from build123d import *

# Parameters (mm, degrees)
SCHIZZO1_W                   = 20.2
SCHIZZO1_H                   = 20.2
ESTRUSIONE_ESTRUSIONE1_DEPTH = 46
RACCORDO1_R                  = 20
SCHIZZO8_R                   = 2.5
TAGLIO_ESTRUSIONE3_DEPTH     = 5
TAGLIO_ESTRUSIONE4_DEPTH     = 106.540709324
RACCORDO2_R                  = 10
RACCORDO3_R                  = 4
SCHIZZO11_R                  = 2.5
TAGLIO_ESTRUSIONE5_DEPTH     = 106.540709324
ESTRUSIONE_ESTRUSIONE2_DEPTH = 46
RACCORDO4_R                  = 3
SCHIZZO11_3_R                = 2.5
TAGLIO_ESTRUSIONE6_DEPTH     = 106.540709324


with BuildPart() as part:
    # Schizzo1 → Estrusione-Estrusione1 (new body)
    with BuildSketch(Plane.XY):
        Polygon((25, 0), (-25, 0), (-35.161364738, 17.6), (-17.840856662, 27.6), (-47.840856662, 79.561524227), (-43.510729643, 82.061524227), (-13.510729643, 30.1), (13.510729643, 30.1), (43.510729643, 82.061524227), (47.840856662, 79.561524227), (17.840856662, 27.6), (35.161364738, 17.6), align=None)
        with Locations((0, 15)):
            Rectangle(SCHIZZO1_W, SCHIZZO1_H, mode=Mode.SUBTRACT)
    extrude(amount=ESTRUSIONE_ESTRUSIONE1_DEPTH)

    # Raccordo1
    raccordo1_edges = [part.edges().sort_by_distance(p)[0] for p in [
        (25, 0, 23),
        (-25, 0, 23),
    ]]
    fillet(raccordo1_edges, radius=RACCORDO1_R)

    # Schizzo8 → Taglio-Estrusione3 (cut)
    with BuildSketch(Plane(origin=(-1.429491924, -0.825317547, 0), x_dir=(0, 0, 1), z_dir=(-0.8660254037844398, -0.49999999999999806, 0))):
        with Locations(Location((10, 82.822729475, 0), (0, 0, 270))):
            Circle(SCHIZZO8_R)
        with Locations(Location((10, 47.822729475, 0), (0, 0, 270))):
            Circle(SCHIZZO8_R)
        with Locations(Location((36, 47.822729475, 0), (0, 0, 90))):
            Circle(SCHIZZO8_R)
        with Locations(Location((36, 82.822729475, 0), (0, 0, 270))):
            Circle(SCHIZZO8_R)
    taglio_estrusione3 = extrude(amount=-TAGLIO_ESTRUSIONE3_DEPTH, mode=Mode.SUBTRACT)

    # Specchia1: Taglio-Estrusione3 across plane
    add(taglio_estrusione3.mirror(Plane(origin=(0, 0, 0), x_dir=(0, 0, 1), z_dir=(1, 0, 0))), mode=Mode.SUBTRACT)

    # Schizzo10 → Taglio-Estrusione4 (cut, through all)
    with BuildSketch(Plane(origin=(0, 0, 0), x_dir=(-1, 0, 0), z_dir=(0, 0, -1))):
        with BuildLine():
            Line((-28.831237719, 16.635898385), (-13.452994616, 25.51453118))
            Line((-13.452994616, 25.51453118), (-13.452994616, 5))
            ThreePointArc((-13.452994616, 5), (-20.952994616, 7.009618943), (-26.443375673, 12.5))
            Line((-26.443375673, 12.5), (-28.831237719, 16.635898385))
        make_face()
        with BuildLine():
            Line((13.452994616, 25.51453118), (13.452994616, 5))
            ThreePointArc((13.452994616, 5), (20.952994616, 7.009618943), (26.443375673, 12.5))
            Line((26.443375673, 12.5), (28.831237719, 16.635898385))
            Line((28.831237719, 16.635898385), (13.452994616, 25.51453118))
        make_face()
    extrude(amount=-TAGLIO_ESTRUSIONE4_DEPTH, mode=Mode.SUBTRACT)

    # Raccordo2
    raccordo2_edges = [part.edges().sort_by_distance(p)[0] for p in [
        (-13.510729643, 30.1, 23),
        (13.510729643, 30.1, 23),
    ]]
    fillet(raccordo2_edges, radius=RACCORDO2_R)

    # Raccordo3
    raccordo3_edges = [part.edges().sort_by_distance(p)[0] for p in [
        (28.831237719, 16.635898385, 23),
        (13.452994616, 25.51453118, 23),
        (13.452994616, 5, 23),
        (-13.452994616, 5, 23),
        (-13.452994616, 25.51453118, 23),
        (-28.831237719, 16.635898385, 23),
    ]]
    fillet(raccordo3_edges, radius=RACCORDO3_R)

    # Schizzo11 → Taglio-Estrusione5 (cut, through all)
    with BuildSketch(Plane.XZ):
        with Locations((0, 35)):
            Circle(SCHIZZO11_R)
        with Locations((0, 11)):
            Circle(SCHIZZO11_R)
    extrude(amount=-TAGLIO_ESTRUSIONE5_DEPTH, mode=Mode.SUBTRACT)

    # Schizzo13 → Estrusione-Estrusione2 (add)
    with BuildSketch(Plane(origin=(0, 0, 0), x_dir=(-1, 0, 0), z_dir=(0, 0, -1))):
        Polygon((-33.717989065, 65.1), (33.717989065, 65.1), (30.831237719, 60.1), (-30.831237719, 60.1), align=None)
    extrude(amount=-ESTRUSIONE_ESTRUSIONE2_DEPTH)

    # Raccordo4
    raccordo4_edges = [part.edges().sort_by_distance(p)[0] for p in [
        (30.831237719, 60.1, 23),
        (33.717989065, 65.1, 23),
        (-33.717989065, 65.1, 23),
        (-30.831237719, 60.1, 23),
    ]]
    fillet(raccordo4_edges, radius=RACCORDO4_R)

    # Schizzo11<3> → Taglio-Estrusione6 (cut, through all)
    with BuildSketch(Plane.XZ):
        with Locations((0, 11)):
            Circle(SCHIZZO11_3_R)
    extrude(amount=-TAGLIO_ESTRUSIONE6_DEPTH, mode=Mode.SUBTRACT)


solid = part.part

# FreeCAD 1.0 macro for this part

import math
import FreeCAD as App
import Part
import Sketcher

V = App.Vector
Q = App.Units.Quantity


def edges_at(feature, points):
    """Names of the edges that pass closest to the given points."""
    edges = feature.Shape.Edges
    near = lambda p: min(range(len(edges)), key=lambda i: edges[i].distToShape(Part.Vertex(*p))[0])
    return sorted({f"Edge{near(p) + 1}" for p in points})


def add_polygon(sketch, points):
    """Adds a closed chain of lines whose ends are joined by coincident constraints."""
    first, n = sketch.GeometryCount, len(points)
    for a, b in zip(points, points[1:] + points[:1]):
        sketch.addGeometry(Part.LineSegment(App.Vector(*a, 0), App.Vector(*b, 0)), False)
    for i in range(n):
        sketch.addConstraint(Sketcher.Constraint("Coincident", first + i, 2, first + (i + 1) % n, 1))

doc = App.newDocument("Part")
params = doc.addObject("Spreadsheet::Sheet", "Params")
for row, (alias, value) in enumerate([
    ("sketch1_width", "50 mm"),
    ("sketch1_length", "20 mm"),
    ("sketch1_length2", "60 mm"),
    ("sketch1_length3", "5 mm"),
    ("sketch1_width2", "20.2 mm"),
    ("pad1_length", "46 mm"),
    ("fillet_radius", "20 mm"),
    ("sketch2_diameter", "5 mm"),
    ("pocket1_length", "5 mm"),
    ("sketch3_radius", "15 mm"),
    ("fillet2_radius", "10 mm"),
    ("fillet3_radius", "4 mm"),
    ("sketch4_diameter", "5 mm"),
    ("pad2_length", "46 mm"),
    ("fillet4_radius", "3 mm"),
    ("sketch6_diameter", "5 mm"),
], start=1):
    params.set(f"A{row}", alias)
    params.set(f"B{row}", "=" + value)
    params.setAlias(f"B{row}", alias)

body = doc.addObject("PartDesign::Body", "Body")

sketch1 = doc.addObject("Sketcher::SketchObject", "Sketch")
body.addObject(sketch1)
sketch1.AttachmentSupport = (doc.XY_Plane, [""])
sketch1.MapMode = "FlatFace"
add_polygon(sketch1, [(-25, 0), (25, 0), (35.161365, 17.6), (17.840857, 27.6), (47.840857, 79.561524), (43.51073, 82.061524), (13.51073, 30.1), (-13.51073, 30.1), (-43.51073, 82.061524), (-47.840857, 79.561524), (-17.840857, 27.6), (-35.161365, 17.6)])
add_polygon(sketch1, [(-10.1, 4.9), (-10.1, 25.1), (10.1, 25.1), (10.1, 4.9)])
sketch1.addConstraint(Sketcher.Constraint("Horizontal", 0))
sketch1.addConstraint(Sketcher.Constraint("Horizontal", 6))
sketch1.addConstraint(Sketcher.Constraint("Vertical", 12))
sketch1.addConstraint(Sketcher.Constraint("Horizontal", 13))
sketch1.addConstraint(Sketcher.Constraint("Vertical", 14))
sketch1.addConstraint(Sketcher.Constraint("Horizontal", 15))
sketch1.addConstraint(Sketcher.Constraint("Symmetric", 0, 2, 11, 2, -1, 1))
sketch1.addConstraint(Sketcher.Constraint("Symmetric", 4, 2, 7, 2, -2))
sketch1.addConstraint(Sketcher.Constraint("Symmetric", 3, 2, 8, 2, -2))
sketch1.addConstraint(Sketcher.Constraint("Symmetric", 2, 2, 9, 2, -2))
sketch1.addConstraint(Sketcher.Constraint("Symmetric", 1, 2, 10, 2, -2))
sketch1.addConstraint(Sketcher.Constraint("Perpendicular", 1, 2))
sketch1.addConstraint(Sketcher.Constraint("Perpendicular", 2, 3))
sketch1.addConstraint(Sketcher.Constraint("Perpendicular", 3, 4))
sketch1.addConstraint(Sketcher.Constraint("Perpendicular", 4, 5))
sketch1.addConstraint(Sketcher.Constraint("Perpendicular", 7, 8))
sketch1.addConstraint(Sketcher.Constraint("Equal", 15, 12))
sketch1.addConstraint(Sketcher.Constraint("Equal", 3, 5))
sketch1.addConstraint(Sketcher.Constraint("DistanceX", 0, 1, 0, 2, 50.0))
sketch1.addConstraint(Sketcher.Constraint("Angle", 1, Q("60 deg")))
sketch1.addConstraint(Sketcher.Constraint("Distance", 2, 20.0))
sketch1.addConstraint(Sketcher.Constraint("Distance", 3, 60.0))
sketch1.addConstraint(Sketcher.Constraint("Distance", 4, 5.0))
sketch1.addConstraint(Sketcher.Constraint("DistanceX", 13, 1, 13, 2, 20.2))
sketch1.addConstraint(Sketcher.Constraint("DistanceY", 12, 2, 6, 2, 5.0))
sketch1.addConstraint(Sketcher.Constraint("DistanceY", -1, 1, 1, 2, 17.6))
sketch1.addConstraint(Sketcher.Constraint("DistanceX", 12, 2, -1, 1, 10.1))
sketch1.setExpression("Constraints[34]", "Params.sketch1_width")
sketch1.setExpression("Constraints[36]", "Params.sketch1_length")
sketch1.setExpression("Constraints[37]", "Params.sketch1_length2")
sketch1.setExpression("Constraints[38]", "Params.sketch1_length3")
sketch1.setExpression("Constraints[39]", "Params.sketch1_width2")
pad1 = doc.addObject("PartDesign::Pad", "Pad")
body.addObject(pad1)
pad1.Profile = sketch1
pad1.setExpression("Length", "Params.pad1_length")
doc.recompute()

fillet = doc.addObject("PartDesign::Fillet", "Fillet")
body.addObject(fillet)
fillet.Base = (pad1, edges_at(pad1, [(25, 0, 23), (-25, 0, 23)]))
fillet.setExpression("Radius", "Params.fillet_radius")

sketch2 = doc.addObject("Sketcher::SketchObject", "Sketch001")
body.addObject(sketch2)
sketch2.Placement = App.Placement(V(-1.429492, -0.825318, 0), App.Rotation(V(0, 0, 1), V(-0.5, 0.866025404, 0), V(-0.866025404, -0.5, 0), "ZXY"))
sketch2.addGeometry(Part.Circle(V(10, 82.82273, 0), V(0, 0, 1), 2.5), False)
sketch2.addGeometry(Part.Circle(V(10, 47.822729, 0), V(0, 0, 1), 2.5), False)
sketch2.addGeometry(Part.Circle(V(36, 47.822729, 0), V(0, 0, 1), 2.5), False)
sketch2.addGeometry(Part.Circle(V(36, 82.82273, 0), V(0, 0, 1), 2.5), False)
sketch2.addConstraint(Sketcher.Constraint("Equal", 0, 1))
sketch2.addConstraint(Sketcher.Constraint("Equal", 1, 2))
sketch2.addConstraint(Sketcher.Constraint("Equal", 2, 3))
sketch2.addConstraint(Sketcher.Constraint("Horizontal", 1, 3, 2, 3))
sketch2.addConstraint(Sketcher.Constraint("Horizontal", 0, 3, 3, 3))
sketch2.addConstraint(Sketcher.Constraint("Vertical", 0, 3, 1, 3))
sketch2.addConstraint(Sketcher.Constraint("Vertical", 2, 3, 3, 3))
sketch2.addConstraint(Sketcher.Constraint("Diameter", 0, 5.0))
sketch2.addConstraint(Sketcher.Constraint("DistanceX", -1, 1, 0, 3, 10.0))
sketch2.addConstraint(Sketcher.Constraint("DistanceX", -1, 1, 2, 3, 36.0))
sketch2.addConstraint(Sketcher.Constraint("DistanceY", 1, 3, 0, 3, 35.0))
sketch2.addConstraint(Sketcher.Constraint("DistanceY", -1, 1, 0, 3, 82.82273))
sketch2.setExpression("Constraints[7]", "Params.sketch2_diameter")
pocket1 = doc.addObject("PartDesign::Pocket", "Pocket")
body.addObject(pocket1)
pocket1.Profile = sketch2
pocket1.setExpression("Length", "Params.pocket1_length")
doc.recompute()

mirrored = doc.addObject("PartDesign::Mirrored", "Mirrored")
body.addObject(mirrored)
mirrored.Originals = [pocket1]
mirrored.MirrorPlane = (doc.YZ_Plane, [""])
body.Tip = mirrored

sketch3 = doc.addObject("Sketcher::SketchObject", "Sketch002")
body.addObject(sketch3)
sketch3.AttachmentSupport = (doc.XY_Plane, [""])
sketch3.MapMode = "FlatFace"
sketch3.addGeometry(Part.LineSegment(V(13.452995, 25.514531, 0), V(28.831238, 16.635898, 0)), False)
sketch3.addGeometry(Part.LineSegment(V(28.831238, 16.635898, 0), V(26.443376, 12.5, 0)), False)
sketch3.addGeometry(Part.ArcOfCircle(Part.Circle(V(13.452995, 20, 0), V(0, 0, 1), 15), math.radians(-90), math.radians(-30)), False)
sketch3.addGeometry(Part.LineSegment(V(13.452995, 5, 0), V(13.452995, 25.514531, 0)), False)
sketch3.addGeometry(Part.LineSegment(V(-13.452995, 25.514531, 0), V(-13.452995, 5, 0)), False)
sketch3.addGeometry(Part.ArcOfCircle(Part.Circle(V(-13.452995, 20, 0), V(0, 0, 1), 15), math.radians(-150), math.radians(-90)), False)
sketch3.addGeometry(Part.LineSegment(V(-26.443376, 12.5, 0), V(-28.831238, 16.635898, 0)), False)
sketch3.addGeometry(Part.LineSegment(V(-28.831238, 16.635898, 0), V(-13.452995, 25.514531, 0)), False)
sketch3.addConstraint(Sketcher.Constraint("Coincident", 0, 2, 1, 1))
sketch3.addConstraint(Sketcher.Constraint("Tangent", 1, 2, 2, 2))
sketch3.addConstraint(Sketcher.Constraint("Coincident", 2, 1, 3, 1))
sketch3.addConstraint(Sketcher.Constraint("Coincident", 3, 2, 0, 1))
sketch3.addConstraint(Sketcher.Constraint("Coincident", 4, 2, 5, 2))
sketch3.addConstraint(Sketcher.Constraint("Tangent", 5, 1, 6, 1))
sketch3.addConstraint(Sketcher.Constraint("Coincident", 6, 2, 7, 1))
sketch3.addConstraint(Sketcher.Constraint("Coincident", 7, 2, 4, 1))
sketch3.addConstraint(Sketcher.Constraint("Vertical", 3))
sketch3.addConstraint(Sketcher.Constraint("Vertical", 4))
sketch3.addConstraint(Sketcher.Constraint("Equal", 2, 5))
sketch3.addConstraint(Sketcher.Constraint("Symmetric", 2, 3, 5, 3, -2))
sketch3.addConstraint(Sketcher.Constraint("Symmetric", 0, 2, 6, 2, -2))
sketch3.addConstraint(Sketcher.Constraint("Symmetric", 3, 2, 7, 2, -2))
sketch3.addConstraint(Sketcher.Constraint("Perpendicular", 0, 1))
sketch3.addConstraint(Sketcher.Constraint("Vertical", 5, 3, 4, 2))
sketch3.addConstraint(Sketcher.Constraint("Radius", 2, 15.0))
sketch3.addConstraint(Sketcher.Constraint("Angle", 0, Q("-30 deg")))
sketch3.addConstraint(Sketcher.Constraint("DistanceY", -1, 1, 2, 3, 20.0))
sketch3.addConstraint(Sketcher.Constraint("DistanceY", 3, 1, 3, 2, 20.514531))
sketch3.addConstraint(Sketcher.Constraint("DistanceX", 5, 3, 2, 3, 26.905989))
sketch3.setExpression("Constraints[16]", "Params.sketch3_radius")
pocket2 = doc.addObject("PartDesign::Pocket", "Pocket001")
body.addObject(pocket2)
pocket2.Profile = sketch3
pocket2.Type = "ThroughAll"
pocket2.Reversed = True
doc.recompute()

fillet2 = doc.addObject("PartDesign::Fillet", "Fillet001")
body.addObject(fillet2)
fillet2.Base = (pocket2, edges_at(pocket2, [(-13.511, 30.1, 23), (13.511, 30.1, 23)]))
fillet2.setExpression("Radius", "Params.fillet2_radius")
doc.recompute()

fillet3 = doc.addObject("PartDesign::Fillet", "Fillet002")
body.addObject(fillet3)
fillet3.Base = (fillet2, edges_at(fillet2, [
    (28.831, 16.636, 23),
    (13.453, 25.515, 23),
    (13.453, 5, 23),
    (-13.453, 5, 23),
    (-13.453, 25.515, 23),
    (-28.831, 16.636, 23),
]))
fillet3.setExpression("Radius", "Params.fillet3_radius")

sketch4 = doc.addObject("Sketcher::SketchObject", "Sketch003")
body.addObject(sketch4)
sketch4.AttachmentSupport = (doc.XZ_Plane, [""])
sketch4.MapMode = "FlatFace"
sketch4.addGeometry(Part.Circle(V(0, 35, 0), V(0, 0, 1), 2.5), False)
sketch4.addGeometry(Part.Circle(V(0, 11, 0), V(0, 0, 1), 2.5), False)
sketch4.addConstraint(Sketcher.Constraint("Equal", 0, 1))
sketch4.addConstraint(Sketcher.Constraint("PointOnObject", 0, 3, -2))
sketch4.addConstraint(Sketcher.Constraint("PointOnObject", 1, 3, -2))
sketch4.addConstraint(Sketcher.Constraint("Diameter", 0, 5.0))
sketch4.addConstraint(Sketcher.Constraint("DistanceY", -1, 1, 0, 3, 35.0))
sketch4.addConstraint(Sketcher.Constraint("DistanceY", -1, 1, 1, 3, 11.0))
sketch4.setExpression("Constraints[3]", "Params.sketch4_diameter")
pocket3 = doc.addObject("PartDesign::Pocket", "Pocket002")
body.addObject(pocket3)
pocket3.Profile = sketch4
pocket3.Type = "ThroughAll"

sketch5 = doc.addObject("Sketcher::SketchObject", "Sketch004")
body.addObject(sketch5)
sketch5.AttachmentSupport = (doc.XY_Plane, [""])
sketch5.MapMode = "FlatFace"
add_polygon(sketch5, [(-33.717989, 65.1), (33.717989, 65.1), (30.831238, 60.1), (-30.831238, 60.1)])
sketch5.addConstraint(Sketcher.Constraint("Horizontal", 0))
sketch5.addConstraint(Sketcher.Constraint("Horizontal", 2))
sketch5.addConstraint(Sketcher.Constraint("Equal", 1, 3))
sketch5.addConstraint(Sketcher.Constraint("Angle", 1, Q("-120 deg")))
sketch5.addConstraint(Sketcher.Constraint("DistanceY", 1, 2, 0, 2, 5.0))
sketch5.addConstraint(Sketcher.Constraint("DistanceY", -1, 1, 0, 2, 65.1))
sketch5.addConstraint(Sketcher.Constraint("DistanceX", 0, 1, 0, 2, 67.435978))
sketch5.addConstraint(Sketcher.Constraint("DistanceX", -1, 1, 0, 2, 33.717989))
pad2 = doc.addObject("PartDesign::Pad", "Pad001")
body.addObject(pad2)
pad2.Profile = sketch5
pad2.setExpression("Length", "Params.pad2_length")
doc.recompute()

fillet4 = doc.addObject("PartDesign::Fillet", "Fillet003")
body.addObject(fillet4)
fillet4.Base = (pad2, edges_at(pad2, [
    (30.831, 60.1, 23),
    (33.718, 65.1, 23),
    (-33.718, 65.1, 23),
    (-30.831, 60.1, 23),
]))
fillet4.setExpression("Radius", "Params.fillet4_radius")

sketch6 = doc.addObject("Sketcher::SketchObject", "Sketch005")
body.addObject(sketch6)
sketch6.AttachmentSupport = (doc.XZ_Plane, [""])
sketch6.MapMode = "FlatFace"
sketch6.addGeometry(Part.Circle(V(0, 11, 0), V(0, 0, 1), 2.5), False)
sketch6.addConstraint(Sketcher.Constraint("PointOnObject", 0, 3, -2))
sketch6.addConstraint(Sketcher.Constraint("Diameter", 0, 5.0))
sketch6.addConstraint(Sketcher.Constraint("DistanceY", -1, 1, 0, 3, 11.0))
sketch6.setExpression("Constraints[1]", "Params.sketch6_diameter")
pocket4 = doc.addObject("PartDesign::Pocket", "Pocket003")
body.addObject(pocket4)
pocket4.Profile = sketch6
pocket4.Type = "ThroughAll"

doc.recompute()
